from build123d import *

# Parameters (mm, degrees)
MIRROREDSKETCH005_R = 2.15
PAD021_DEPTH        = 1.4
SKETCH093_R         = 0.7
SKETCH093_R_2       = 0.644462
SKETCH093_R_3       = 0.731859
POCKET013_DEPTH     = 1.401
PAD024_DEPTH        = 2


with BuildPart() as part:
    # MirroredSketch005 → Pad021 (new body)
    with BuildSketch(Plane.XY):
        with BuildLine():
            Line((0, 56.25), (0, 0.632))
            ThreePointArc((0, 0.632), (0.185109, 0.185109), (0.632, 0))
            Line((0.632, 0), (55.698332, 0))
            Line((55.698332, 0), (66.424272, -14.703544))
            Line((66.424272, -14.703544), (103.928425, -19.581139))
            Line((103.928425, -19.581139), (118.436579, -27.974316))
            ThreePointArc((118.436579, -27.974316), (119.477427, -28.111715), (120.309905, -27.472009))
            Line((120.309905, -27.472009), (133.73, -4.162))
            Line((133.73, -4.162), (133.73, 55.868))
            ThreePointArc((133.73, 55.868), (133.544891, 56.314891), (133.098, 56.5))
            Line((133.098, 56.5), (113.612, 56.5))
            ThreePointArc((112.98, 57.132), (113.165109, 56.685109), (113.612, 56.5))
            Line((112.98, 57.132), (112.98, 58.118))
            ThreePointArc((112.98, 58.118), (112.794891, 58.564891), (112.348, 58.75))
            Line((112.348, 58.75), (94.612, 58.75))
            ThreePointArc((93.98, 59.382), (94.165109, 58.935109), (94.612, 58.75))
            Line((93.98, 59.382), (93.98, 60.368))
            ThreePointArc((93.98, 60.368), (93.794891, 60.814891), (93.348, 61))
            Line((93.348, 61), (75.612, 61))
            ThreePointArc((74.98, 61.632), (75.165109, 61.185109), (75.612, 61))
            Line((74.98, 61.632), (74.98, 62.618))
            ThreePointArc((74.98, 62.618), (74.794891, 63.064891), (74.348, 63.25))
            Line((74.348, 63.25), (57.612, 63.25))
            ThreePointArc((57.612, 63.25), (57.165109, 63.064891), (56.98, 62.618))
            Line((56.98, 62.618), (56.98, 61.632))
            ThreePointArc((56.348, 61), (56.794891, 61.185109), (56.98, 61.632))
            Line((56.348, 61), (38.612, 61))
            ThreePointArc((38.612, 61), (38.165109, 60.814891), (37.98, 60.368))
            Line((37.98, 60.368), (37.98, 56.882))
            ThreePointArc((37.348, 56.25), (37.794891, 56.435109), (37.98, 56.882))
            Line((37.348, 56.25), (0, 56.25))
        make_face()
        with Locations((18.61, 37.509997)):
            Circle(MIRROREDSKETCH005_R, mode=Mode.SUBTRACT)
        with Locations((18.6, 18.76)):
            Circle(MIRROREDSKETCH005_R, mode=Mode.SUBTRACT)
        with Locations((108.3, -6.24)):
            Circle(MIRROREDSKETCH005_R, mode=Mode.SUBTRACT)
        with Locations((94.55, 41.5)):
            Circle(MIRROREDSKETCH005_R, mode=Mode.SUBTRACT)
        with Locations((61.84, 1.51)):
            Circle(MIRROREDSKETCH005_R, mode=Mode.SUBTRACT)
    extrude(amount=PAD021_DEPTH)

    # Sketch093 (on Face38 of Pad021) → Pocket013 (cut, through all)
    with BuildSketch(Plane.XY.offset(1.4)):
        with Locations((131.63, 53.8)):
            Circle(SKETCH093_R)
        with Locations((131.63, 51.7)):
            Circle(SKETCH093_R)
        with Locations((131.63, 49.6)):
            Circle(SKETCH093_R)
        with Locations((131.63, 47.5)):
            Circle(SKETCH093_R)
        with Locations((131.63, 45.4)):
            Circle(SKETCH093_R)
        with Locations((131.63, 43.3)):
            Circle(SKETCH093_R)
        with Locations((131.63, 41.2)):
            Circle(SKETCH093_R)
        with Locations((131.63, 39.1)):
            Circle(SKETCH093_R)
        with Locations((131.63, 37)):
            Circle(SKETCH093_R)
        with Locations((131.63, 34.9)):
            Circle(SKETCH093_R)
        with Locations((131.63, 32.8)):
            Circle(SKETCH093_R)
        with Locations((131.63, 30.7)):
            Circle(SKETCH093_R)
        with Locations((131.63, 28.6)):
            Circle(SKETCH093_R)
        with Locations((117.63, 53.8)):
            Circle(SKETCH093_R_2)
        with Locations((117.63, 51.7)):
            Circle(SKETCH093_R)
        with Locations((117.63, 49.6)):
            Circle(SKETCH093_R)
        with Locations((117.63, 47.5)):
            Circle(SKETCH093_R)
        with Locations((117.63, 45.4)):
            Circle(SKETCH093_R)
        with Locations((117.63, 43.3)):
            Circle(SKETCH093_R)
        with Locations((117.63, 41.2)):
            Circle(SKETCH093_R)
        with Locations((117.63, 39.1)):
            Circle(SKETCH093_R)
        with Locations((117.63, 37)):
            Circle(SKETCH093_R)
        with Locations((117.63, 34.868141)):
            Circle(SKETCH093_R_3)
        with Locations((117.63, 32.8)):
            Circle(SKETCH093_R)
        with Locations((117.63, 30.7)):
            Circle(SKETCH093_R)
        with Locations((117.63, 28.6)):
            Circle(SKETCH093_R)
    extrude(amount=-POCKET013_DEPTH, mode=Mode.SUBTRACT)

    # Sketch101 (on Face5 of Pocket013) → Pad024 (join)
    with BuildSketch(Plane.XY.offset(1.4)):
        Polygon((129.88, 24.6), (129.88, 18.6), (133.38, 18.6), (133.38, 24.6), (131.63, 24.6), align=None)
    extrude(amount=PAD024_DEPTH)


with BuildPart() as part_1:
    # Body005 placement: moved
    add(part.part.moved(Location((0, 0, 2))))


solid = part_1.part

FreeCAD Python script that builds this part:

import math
import FreeCAD as App
import Part
import Sketcher
from FreeCAD import Vector
Q = App.Units.Quantity


def add_polygon(sketch, points):
    """Adds a closed chain of lines whose ends are joined by coincident constraints."""
    first, n = sketch.GeometryCount, len(points)
    for a, b in zip(points, points[1:] + points[:1]):
        sketch.addGeometry(Part.LineSegment(App.Vector(*a, 0), App.Vector(*b, 0)), False)
    for i in range(n):
        sketch.addConstraint(Sketcher.Constraint("Coincident", first + i, 2, first + (i + 1) % n, 1))

doc = App.newDocument("Part")
body = doc.addObject("PartDesign::Body", "Body")

# Sketch on XY plane
sketch1 = body.newObject("Sketcher::SketchObject", "Sketch")
sketch1.AttachmentSupport = (doc.getObject("XY_Plane"), [""])
sketch1.MapMode = "FlatFace"
sketch1.addGeometry([
    Part.LineSegment(Vector(0, 56.2, 0), Vector(0, 0.6, 0)),  # 0
    Part.ArcOfCircle(Part.Circle(Vector(0.6, 0.6, 0), Vector(0, 0, 1), 0.6), math.radians(-180), math.radians(-90)),  # 1
    Part.LineSegment(Vector(0.6, 0, 0), Vector(55.7, 0, 0)),  # 2
    Part.LineSegment(Vector(55.7, 0, 0), Vector(66.4, -14.7, 0)),  # 3
    Part.LineSegment(Vector(66.4, -14.7, 0), Vector(103.9, -19.6, 0)),  # 4
    Part.LineSegment(Vector(103.9, -19.6, 0), Vector(118.4, -28, 0)),  # 5
    Part.ArcOfCircle(Part.Circle(Vector(119.1, -26.8, 0), Vector(0, 0, 1), 1.4), math.radians(-120), math.radians(-30)),  # 6
    Part.LineSegment(Vector(120.3, -27.5, 0), Vector(133.7, -4.2, 0)),  # 7
    Part.LineSegment(Vector(133.7, -4.2, 0), Vector(133.7, 55.9, 0)),  # 8
    Part.ArcOfCircle(Part.Circle(Vector(133.1, 55.9, 0), Vector(0, 0, 1), 0.6), math.radians(0), math.radians(90)),  # 9
    Part.LineSegment(Vector(133.1, 56.5, 0), Vector(113.6, 56.5, 0)),  # 10
    Part.ArcOfCircle(Part.Circle(Vector(113.6, 57.1, 0), Vector(0, 0, 1), 0.6), math.radians(-180), math.radians(-90)),  # 11
    Part.LineSegment(Vector(113, 57.1, 0), Vector(113, 58.1, 0)),  # 12
    Part.ArcOfCircle(Part.Circle(Vector(112.3, 58.1, 0), Vector(0, 0, 1), 0.6), math.radians(0), math.radians(90)),  # 13
    Part.LineSegment(Vector(112.3, 58.8, 0), Vector(94.6, 58.8, 0)),  # 14
    Part.ArcOfCircle(Part.Circle(Vector(94.6, 59.4, 0), Vector(0, 0, 1), 0.6), math.radians(-180), math.radians(-90)),  # 15
    Part.LineSegment(Vector(94, 59.4, 0), Vector(94, 60.4, 0)),  # 16
    Part.ArcOfCircle(Part.Circle(Vector(93.3, 60.4, 0), Vector(0, 0, 1), 0.6), math.radians(0), math.radians(90)),  # 17
    Part.LineSegment(Vector(93.3, 61, 0), Vector(75.6, 61, 0)),  # 18
    Part.ArcOfCircle(Part.Circle(Vector(75.6, 61.6, 0), Vector(0, 0, 1), 0.6), math.radians(-180), math.radians(-90)),  # 19
    Part.LineSegment(Vector(75, 61.6, 0), Vector(75, 62.6, 0)),  # 20
    Part.ArcOfCircle(Part.Circle(Vector(74.3, 62.6, 0), Vector(0, 0, 1), 0.6), math.radians(0), math.radians(90)),  # 21
    Part.LineSegment(Vector(74.3, 63.2, 0), Vector(57.6, 63.2, 0)),  # 22
    Part.ArcOfCircle(Part.Circle(Vector(57.6, 62.6, 0), Vector(0, 0, 1), 0.6), math.radians(90), math.radians(180)),  # 23
    Part.LineSegment(Vector(57, 62.6, 0), Vector(57, 61.6, 0)),  # 24
    Part.ArcOfCircle(Part.Circle(Vector(56.3, 61.6, 0), Vector(0, 0, 1), 0.6), math.radians(-90), math.radians(0)),  # 25
    Part.LineSegment(Vector(56.3, 61, 0), Vector(38.6, 61, 0)),  # 26
    Part.ArcOfCircle(Part.Circle(Vector(38.6, 60.4, 0), Vector(0, 0, 1), 0.6), math.radians(90), math.radians(180)),  # 27
    Part.LineSegment(Vector(38, 60.4, 0), Vector(38, 56.9, 0)),  # 28
    Part.ArcOfCircle(Part.Circle(Vector(37.3, 56.9, 0), Vector(0, 0, 1), 0.6), math.radians(-90), math.radians(0)),  # 29
    Part.LineSegment(Vector(37.3, 56.2, 0), Vector(0, 56.2, 0)),  # 30
    Part.Circle(Vector(61.8, 1.5, 0), Vector(0, 0, 1), 2.1),  # 31
    Part.Circle(Vector(108.3, -6.2, 0), Vector(0, 0, 1), 2.1),  # 32
    Part.Circle(Vector(18.6, 18.8, 0), Vector(0, 0, 1), 2.1),  # 33
    Part.Circle(Vector(18.6, 37.5, 0), Vector(0, 0, 1), 2.1),  # 34
    Part.Circle(Vector(94.5, 41.5, 0), Vector(0, 0, 1), 2.1),  # 35
], False)
sketch1.addConstraint([
    Sketcher.Constraint("Coincident", 0, 2, 1, 1),
    Sketcher.Constraint("Coincident", 1, 2, 2, 1),
    Sketcher.Constraint("Coincident", 2, 2, 3, 1),
    Sketcher.Constraint("Coincident", 3, 2, 4, 1),
    Sketcher.Constraint("Coincident", 4, 2, 5, 1),
    Sketcher.Constraint("Tangent", 5, 2, 6, 1),
    Sketcher.Constraint("Tangent", 6, 2, 7, 1),
    Sketcher.Constraint("Coincident", 7, 2, 8, 1),
    Sketcher.Constraint("Coincident", 8, 2, 9, 1),
    Sketcher.Constraint("Coincident", 9, 2, 10, 1),
    Sketcher.Constraint("Coincident", 10, 2, 11, 2),
    Sketcher.Constraint("Coincident", 11, 1, 12, 1),
    Sketcher.Constraint("Coincident", 12, 2, 13, 1),
    Sketcher.Constraint("Coincident", 13, 2, 14, 1),
    Sketcher.Constraint("Coincident", 14, 2, 15, 2),
    Sketcher.Constraint("Coincident", 15, 1, 16, 1),
    Sketcher.Constraint("Coincident", 16, 2, 17, 1),
    Sketcher.Constraint("Coincident", 17, 2, 18, 1),
    Sketcher.Constraint("Coincident", 18, 2, 19, 2),
    Sketcher.Constraint("Coincident", 19, 1, 20, 1),
    Sketcher.Constraint("Coincident", 20, 2, 21, 1),
    Sketcher.Constraint("Coincident", 21, 2, 22, 1),
    Sketcher.Constraint("Coincident", 22, 2, 23, 1),
    Sketcher.Constraint("Coincident", 23, 2, 24, 1),
    Sketcher.Constraint("Coincident", 24, 2, 25, 2),
    Sketcher.Constraint("Coincident", 25, 1, 26, 1),
    Sketcher.Constraint("Coincident", 26, 2, 27, 1),
    Sketcher.Constraint("Coincident", 27, 2, 28, 1),
    Sketcher.Constraint("Coincident", 28, 2, 29, 2),
    Sketcher.Constraint("Coincident", 29, 1, 30, 1),
    Sketcher.Constraint("Coincident", 30, 2, 0, 1),
    Sketcher.Constraint("Vertical", 0),
    Sketcher.Constraint("Horizontal", 2),
    Sketcher.Constraint("Vertical", 8),
    Sketcher.Constraint("Horizontal", 10),
    Sketcher.Constraint("Vertical", 12),
    Sketcher.Constraint("Horizontal", 14),
    Sketcher.Constraint("Vertical", 16),
    Sketcher.Constraint("Horizontal", 18),
    Sketcher.Constraint("Vertical", 20),
    Sketcher.Constraint("Horizontal", 22),
    Sketcher.Constraint("Vertical", 24),
    Sketcher.Constraint("Horizontal", 26),
    Sketcher.Constraint("Vertical", 28),
    Sketcher.Constraint("Horizontal", 30),
    Sketcher.Constraint("Equal", 1, 9),
    Sketcher.Constraint("Equal", 9, 11),
    Sketcher.Constraint("Equal", 11, 13),
    Sketcher.Constraint("Equal", 13, 15),
    Sketcher.Constraint("Equal", 15, 17),
    Sketcher.Constraint("Equal", 17, 19),
    Sketcher.Constraint("Equal", 19, 21),
    Sketcher.Constraint("Equal", 21, 23),
    Sketcher.Constraint("Equal", 23, 25),
    Sketcher.Constraint("Equal", 25, 27),
    Sketcher.Constraint("Equal", 27, 29),
    Sketcher.Constraint("Equal", 31, 32),
    Sketcher.Constraint("Equal", 32, 33),
    Sketcher.Constraint("Equal", 33, 34),
    Sketcher.Constraint("Equal", 34, 35),
    Sketcher.Constraint("PointOnObject", 0, 2, -2),
    Sketcher.Constraint("PointOnObject", 1, 2, -1),
    Sketcher.Constraint("Horizontal", 19, 3, 25, 3),
    Sketcher.Constraint("Horizontal", 1, 3, 0, 2),
    Sketcher.Constraint("Horizontal", 9, 3, 8, 2),
    Sketcher.Constraint("Horizontal", 13, 3, 12, 2),
    Sketcher.Constraint("Horizontal", 27, 3, 16, 2),
    Sketcher.Constraint("Horizontal", 25, 3, 19, 1),
    Sketcher.Constraint("Horizontal", 23, 3, 20, 2),
    Sketcher.Constraint("Horizontal", 20, 2, 23, 2),
    Sketcher.Constraint("Horizontal", 19, 1, 24, 2),
    Sketcher.Constraint("Horizontal", 16, 2, 27, 2),
    Sketcher.Constraint("Horizontal", 29, 3, 28, 2),
    Sketcher.Constraint("Vertical", 11, 3, 10, 2),
    Sketcher.Constraint("Vertical", 15, 3, 14, 2),
    Sketcher.Constraint("Vertical", 19, 3, 18, 2),
    Sketcher.Constraint("Vertical", 23, 3, 22, 2),
    Sketcher.Constraint("Vertical", 27, 3, 26, 2),
    Sketcher.Constraint("Equal", 14, 18),
    Sketcher.Constraint("Equal", 18, 26),
    Sketcher.Constraint("Equal", 12, 16),
    Sketcher.Constraint("Equal", 16, 20),
    Sketcher.Constraint("Diameter", 31, Q("4.3 mm")),
    Sketcher.Constraint("Radius", 6, Q("1.370002 mm")),
    Sketcher.Constraint("DistanceY", -1, 1, 17, 2, Q("61 mm")),
    Sketcher.Constraint("Radius", 1, Q("0.632002 mm")),
    Sketcher.Constraint("DistanceX", 15, 3, 11, 3, Q("19 mm")),
    Sketcher.Constraint("DistanceX", 19, 3, 15, 3, Q("19 mm")),
    Sketcher.Constraint("DistanceX", 23, 3, 19, 3, Q("18 mm")),
    Sketcher.Constraint("DistanceX", 27, 3, 23, 3, Q("19 mm")),
    Sketcher.Constraint("Distance", 3, Q("18.2 mm")),
    Sketcher.Constraint("DistanceY", 8, 1, 8, 2, Q("60.03 mm")),
    Sketcher.Constraint("DistanceX", -1, 1, 32, 3, Q("108.3 mm")),
    Sketcher.Constraint("DistanceX", -1, 1, 33, 3, Q("18.6 mm")),
    Sketcher.Constraint("DistanceY", -1, 1, 35, 3, Q("41.5 mm")),
    Sketcher.Constraint("DistanceY", -1, 1, 9, 2, Q("56.5 mm")),
    Sketcher.Constraint("Angle", 3, Q("-53.89 deg")),
    Sketcher.Constraint("Angle", 4, Q("-7.41 deg")),
    Sketcher.Constraint("Angle", 5, Q("-30.050003 deg")),
    Sketcher.Constraint("Angle", 7, Q("60.070001 deg")),
    Sketcher.Constraint("DistanceY", 13, 3, 21, 3, Q("4.5 mm")),
    Sketcher.Constraint("Distance", 4, Q("37.82 mm")),
    Sketcher.Constraint("DistanceX", 10, 2, 10, 1, Q("19.486 mm")),
    Sketcher.Constraint("DistanceX", 14, 2, 14, 1, Q("17.736 mm")),
    Sketcher.Constraint("DistanceX", 22, 2, 22, 1, Q("16.736 mm")),
    Sketcher.Constraint("DistanceX", 30, 2, 30, 1, Q("37.348 mm")),
    Sketcher.Constraint("DistanceY", 0, 2, 0, 1, Q("55.618 mm")),
    Sketcher.Constraint("DistanceY", 12, 1, 12, 2, Q("0.986 mm")),
    Sketcher.Constraint("DistanceX", -1, 1, 31, 3, Q("61.84 mm")),
    Sketcher.Constraint("DistanceY", -1, 1, 31, 3, Q("1.51 mm")),
    Sketcher.Constraint("DistanceY", 32, 3, -1, 1, Q("6.24 mm")),
    Sketcher.Constraint("DistanceY", -1, 1, 33, 3, Q("18.76 mm")),
    Sketcher.Constraint("DistanceX", -1, 1, 34, 3, Q("18.61 mm")),
    Sketcher.Constraint("DistanceX", -1, 1, 35, 3, Q("94.55 mm")),
    Sketcher.Constraint("DistanceX", -1, 1, 7, 2, Q("133.73 mm")),
    Sketcher.Constraint("DistanceX", -1, 1, 11, 1, Q("112.98 mm")),
    Sketcher.Constraint("DistanceX", -1, 1, 1, 2, Q("0.632 mm")),
    Sketcher.Constraint("DistanceY", 34, 3, 27, 3, Q("22.858001 mm")),
    Sketcher.Constraint("DistanceX", 2, 1, 2, 2, Q("55.066332 mm")),
])
pad1 = body.newObject("PartDesign::Pad", "Pad")
pad1.Profile = sketch1
pad1.Length = 1.4

# Sketch on XY plane
sketch2 = body.newObject("Sketcher::SketchObject", "Sketch001")
sketch2.AttachmentSupport = (doc.getObject("XY_Plane"), [""])
sketch2.MapMode = "FlatFace"
sketch2.AttachmentOffset = App.Placement(Vector(0, 0, 1.4), App.Rotation())
sketch2.addGeometry([
    Part.Circle(Vector(131.6, 53.8, 0), Vector(0, 0, 1), 0.7),  # 0
    Part.Circle(Vector(131.6, 51.7, 0), Vector(0, 0, 1), 0.7),  # 1
    Part.Circle(Vector(131.6, 49.6, 0), Vector(0, 0, 1), 0.7),  # 2
    Part.Circle(Vector(131.6, 47.5, 0), Vector(0, 0, 1), 0.7),  # 3
    Part.Circle(Vector(131.6, 45.4, 0), Vector(0, 0, 1), 0.7),  # 4
    Part.Circle(Vector(131.6, 43.3, 0), Vector(0, 0, 1), 0.7),  # 5
    Part.Circle(Vector(131.6, 41.2, 0), Vector(0, 0, 1), 0.7),  # 6
    Part.Circle(Vector(131.6, 39.1, 0), Vector(0, 0, 1), 0.7),  # 7
    Part.Circle(Vector(131.6, 37, 0), Vector(0, 0, 1), 0.7),  # 8
    Part.Circle(Vector(131.6, 34.9, 0), Vector(0, 0, 1), 0.7),  # 9
    Part.Circle(Vector(131.6, 32.8, 0), Vector(0, 0, 1), 0.7),  # 10
    Part.Circle(Vector(131.6, 30.7, 0), Vector(0, 0, 1), 0.7),  # 11
    Part.Circle(Vector(131.6, 28.6, 0), Vector(0, 0, 1), 0.7),  # 12
    Part.Circle(Vector(117.6, 53.8, 0), Vector(0, 0, 1), 0.6),  # 13
    Part.Circle(Vector(117.6, 51.7, 0), Vector(0, 0, 1), 0.7),  # 14
    Part.Circle(Vector(117.6, 49.6, 0), Vector(0, 0, 1), 0.7),  # 15
    Part.Circle(Vector(117.6, 47.5, 0), Vector(0, 0, 1), 0.7),  # 16
    Part.Circle(Vector(117.6, 45.4, 0), Vector(0, 0, 1), 0.7),  # 17
    Part.Circle(Vector(117.6, 43.3, 0), Vector(0, 0, 1), 0.7),  # 18
    Part.Circle(Vector(117.6, 41.2, 0), Vector(0, 0, 1), 0.7),  # 19
    Part.Circle(Vector(117.6, 39.1, 0), Vector(0, 0, 1), 0.7),  # 20
    Part.Circle(Vector(117.6, 37, 0), Vector(0, 0, 1), 0.7),  # 21
    Part.Circle(Vector(117.6, 34.9, 0), Vector(0, 0, 1), 0.7),  # 22
    Part.Circle(Vector(117.6, 32.8, 0), Vector(0, 0, 1), 0.7),  # 23
    Part.Circle(Vector(117.6, 30.7, 0), Vector(0, 0, 1), 0.7),  # 24
    Part.Circle(Vector(117.6, 28.6, 0), Vector(0, 0, 1), 0.7),  # 25
], False)
sketch2.addConstraint([
    Sketcher.Constraint("Equal", 0, 1),
    Sketcher.Constraint("Equal", 1, 2),
    Sketcher.Constraint("Equal", 2, 3),
    Sketcher.Constraint("Equal", 3, 4),
    Sketcher.Constraint("Equal", 4, 5),
    Sketcher.Constraint("Equal", 5, 6),
    Sketcher.Constraint("Equal", 6, 7),
    Sketcher.Constraint("Equal", 7, 8),
    Sketcher.Constraint("Equal", 8, 9),
    Sketcher.Constraint("Equal", 9, 10),
    Sketcher.Constraint("Equal", 10, 11),
    Sketcher.Constraint("Equal", 11, 12),
    Sketcher.Constraint("Equal", 12, 14),
    Sketcher.Constraint("Equal", 14, 15),
    Sketcher.Constraint("Equal", 15, 16),
    Sketcher.Constraint("Equal", 16, 17),
    Sketcher.Constraint("Equal", 17, 18),
    Sketcher.Constraint("Equal", 18, 19),
    Sketcher.Constraint("Equal", 19, 20),
    Sketcher.Constraint("Equal", 20, 21),
    Sketcher.Constraint("Equal", 21, 23),
    Sketcher.Constraint("Equal", 23, 24),
    Sketcher.Constraint("Equal", 24, 25),
    Sketcher.Constraint("Horizontal", 0, 3, 13, 3),
    Sketcher.Constraint("Horizontal", 1, 3, 14, 3),
    Sketcher.Constraint("Horizontal", 2, 3, 15, 3),
    Sketcher.Constraint("Horizontal", 3, 3, 16, 3),
    Sketcher.Constraint("Horizontal", 4, 3, 17, 3),
    Sketcher.Constraint("Horizontal", 5, 3, 18, 3),
    Sketcher.Constraint("Horizontal", 6, 3, 19, 3),
    Sketcher.Constraint("Horizontal", 7, 3, 20, 3),
    Sketcher.Constraint("Horizontal", 8, 3, 21, 3),
    Sketcher.Constraint("Horizontal", 10, 3, 23, 3),
    Sketcher.Constraint("Horizontal", 11, 3, 24, 3),
    Sketcher.Constraint("Horizontal", 12, 3, 25, 3),
    Sketcher.Constraint("Vertical", 0, 3, 1, 3),
    Sketcher.Constraint("Vertical", 1, 3, 2, 3),
    Sketcher.Constraint("Vertical", 2, 3, 3, 3),
    Sketcher.Constraint("Vertical", 3, 3, 4, 3),
    Sketcher.Constraint("Vertical", 4, 3, 5, 3),
    Sketcher.Constraint("Vertical", 5, 3, 6, 3),
    Sketcher.Constraint("Vertical", 6, 3, 7, 3),
    Sketcher.Constraint("Vertical", 7, 3, 8, 3),
    Sketcher.Constraint("Vertical", 8, 3, 9, 3),
    Sketcher.Constraint("Vertical", 9, 3, 10, 3),
    Sketcher.Constraint("Vertical", 10, 3, 11, 3),
    Sketcher.Constraint("Vertical", 11, 3, 12, 3),
    Sketcher.Constraint("Vertical", 13, 3, 14, 3),
    Sketcher.Constraint("Vertical", 14, 3, 15, 3),
    Sketcher.Constraint("Vertical", 15, 3, 16, 3),
    Sketcher.Constraint("Vertical", 16, 3, 17, 3),
    Sketcher.Constraint("Vertical", 17, 3, 18, 3),
    Sketcher.Constraint("Vertical", 18, 3, 19, 3),
    Sketcher.Constraint("Vertical", 19, 3, 20, 3),
    Sketcher.Constraint("Vertical", 20, 3, 21, 3),
    Sketcher.Constraint("Vertical", 21, 3, 22, 3),
    Sketcher.Constraint("Vertical", 22, 3, 23, 3),
    Sketcher.Constraint("Vertical", 23, 3, 24, 3),
    Sketcher.Constraint("Vertical", 24, 3, 25, 3),
    Sketcher.Constraint("Diameter", 0, Q("1.4 mm")),
    Sketcher.Constraint("DistanceY", -1, 1, 8, 3, Q("37 mm")),
    Sketcher.Constraint("DistanceX", 13, 3, 0, 3, Q("14 mm")),
    Sketcher.Constraint("DistanceY", -1, 1, 0, 3, Q("53.8 mm")),
    Sketcher.Constraint("DistanceY", -1, 1, 1, 3, Q("51.7 mm")),
    Sketcher.Constraint("DistanceY", -1, 1, 2, 3, Q("49.6 mm")),
    Sketcher.Constraint("DistanceY", -1, 1, 3, 3, Q("47.5 mm")),
    Sketcher.Constraint("DistanceY", -1, 1, 4, 3, Q("45.4 mm")),
    Sketcher.Constraint("DistanceY", -1, 1, 5, 3, Q("43.3 mm")),
    Sketcher.Constraint("DistanceY", -1, 1, 6, 3, Q("41.2 mm")),
    Sketcher.Constraint("DistanceY", -1, 1, 7, 3, Q("39.1 mm")),
    Sketcher.Constraint("DistanceY", -1, 1, 9, 3, Q("34.9 mm")),
    Sketcher.Constraint("DistanceY", -1, 1, 10, 3, Q("32.8 mm")),
    Sketcher.Constraint("DistanceY", -1, 1, 11, 3, Q("30.7 mm")),
    Sketcher.Constraint("DistanceY", -1, 1, 12, 3, Q("28.6 mm")),
    Sketcher.Constraint("Diameter", 22, Q("1.463718 mm")),
    Sketcher.Constraint("DistanceX", -1, 1, 0, 3, Q("131.63 mm")),
    Sketcher.Constraint("Diameter", 13, Q("1.288924 mm")),
    Sketcher.Constraint("DistanceY", -1, 1, 22, 3, Q("34.868141 mm")),
])
pocket1 = body.newObject("PartDesign::Pocket", "Pocket")
pocket1.Profile = sketch2
pocket1.Type = "ThroughAll"

# Sketch on XY plane
sketch3 = body.newObject("Sketcher::SketchObject", "Sketch002")
sketch3.AttachmentSupport = (doc.getObject("XY_Plane"), [""])
sketch3.MapMode = "FlatFace"
sketch3.AttachmentOffset = App.Placement(Vector(0, 0, 1.4), App.Rotation())
add_polygon(sketch3, [(129.9, 24.6), (129.9, 18.6), (133.4, 18.6), (133.4, 24.6)])  # lines 0-3
sketch3.addConstraint([
    Sketcher.Constraint("Vertical", 0),
    Sketcher.Constraint("Horizontal", 1),
    Sketcher.Constraint("Vertical", 2),
    Sketcher.Constraint("Horizontal", 3),
    Sketcher.Constraint("DistanceY", 0, 2, 0, 1, Q("6 mm")),
    Sketcher.Constraint("DistanceX", 1, 1, 1, 2, Q("3.5 mm")),
    Sketcher.Constraint("DistanceY", -1, 1, 0, 2, Q("18.6 mm")),
    Sketcher.Constraint("DistanceX", -1, 1, 0, 2, Q("129.88 mm")),
])
pad2 = body.newObject("PartDesign::Pad", "Pad001")
pad2.Profile = sketch3
pad2.Length = 2
body2 = doc.addObject("PartDesign::Body", "Body001")
doc.recompute()

body.Placement = App.Placement(Vector(0, 0, 2), App.Rotation(Vector(0, 0, 1), 0))
boolean = body2.newObject("PartDesign::Boolean", "Boolean")
boolean.Type = "Fuse"
boolean.addObjects([body])

doc.recompute()
